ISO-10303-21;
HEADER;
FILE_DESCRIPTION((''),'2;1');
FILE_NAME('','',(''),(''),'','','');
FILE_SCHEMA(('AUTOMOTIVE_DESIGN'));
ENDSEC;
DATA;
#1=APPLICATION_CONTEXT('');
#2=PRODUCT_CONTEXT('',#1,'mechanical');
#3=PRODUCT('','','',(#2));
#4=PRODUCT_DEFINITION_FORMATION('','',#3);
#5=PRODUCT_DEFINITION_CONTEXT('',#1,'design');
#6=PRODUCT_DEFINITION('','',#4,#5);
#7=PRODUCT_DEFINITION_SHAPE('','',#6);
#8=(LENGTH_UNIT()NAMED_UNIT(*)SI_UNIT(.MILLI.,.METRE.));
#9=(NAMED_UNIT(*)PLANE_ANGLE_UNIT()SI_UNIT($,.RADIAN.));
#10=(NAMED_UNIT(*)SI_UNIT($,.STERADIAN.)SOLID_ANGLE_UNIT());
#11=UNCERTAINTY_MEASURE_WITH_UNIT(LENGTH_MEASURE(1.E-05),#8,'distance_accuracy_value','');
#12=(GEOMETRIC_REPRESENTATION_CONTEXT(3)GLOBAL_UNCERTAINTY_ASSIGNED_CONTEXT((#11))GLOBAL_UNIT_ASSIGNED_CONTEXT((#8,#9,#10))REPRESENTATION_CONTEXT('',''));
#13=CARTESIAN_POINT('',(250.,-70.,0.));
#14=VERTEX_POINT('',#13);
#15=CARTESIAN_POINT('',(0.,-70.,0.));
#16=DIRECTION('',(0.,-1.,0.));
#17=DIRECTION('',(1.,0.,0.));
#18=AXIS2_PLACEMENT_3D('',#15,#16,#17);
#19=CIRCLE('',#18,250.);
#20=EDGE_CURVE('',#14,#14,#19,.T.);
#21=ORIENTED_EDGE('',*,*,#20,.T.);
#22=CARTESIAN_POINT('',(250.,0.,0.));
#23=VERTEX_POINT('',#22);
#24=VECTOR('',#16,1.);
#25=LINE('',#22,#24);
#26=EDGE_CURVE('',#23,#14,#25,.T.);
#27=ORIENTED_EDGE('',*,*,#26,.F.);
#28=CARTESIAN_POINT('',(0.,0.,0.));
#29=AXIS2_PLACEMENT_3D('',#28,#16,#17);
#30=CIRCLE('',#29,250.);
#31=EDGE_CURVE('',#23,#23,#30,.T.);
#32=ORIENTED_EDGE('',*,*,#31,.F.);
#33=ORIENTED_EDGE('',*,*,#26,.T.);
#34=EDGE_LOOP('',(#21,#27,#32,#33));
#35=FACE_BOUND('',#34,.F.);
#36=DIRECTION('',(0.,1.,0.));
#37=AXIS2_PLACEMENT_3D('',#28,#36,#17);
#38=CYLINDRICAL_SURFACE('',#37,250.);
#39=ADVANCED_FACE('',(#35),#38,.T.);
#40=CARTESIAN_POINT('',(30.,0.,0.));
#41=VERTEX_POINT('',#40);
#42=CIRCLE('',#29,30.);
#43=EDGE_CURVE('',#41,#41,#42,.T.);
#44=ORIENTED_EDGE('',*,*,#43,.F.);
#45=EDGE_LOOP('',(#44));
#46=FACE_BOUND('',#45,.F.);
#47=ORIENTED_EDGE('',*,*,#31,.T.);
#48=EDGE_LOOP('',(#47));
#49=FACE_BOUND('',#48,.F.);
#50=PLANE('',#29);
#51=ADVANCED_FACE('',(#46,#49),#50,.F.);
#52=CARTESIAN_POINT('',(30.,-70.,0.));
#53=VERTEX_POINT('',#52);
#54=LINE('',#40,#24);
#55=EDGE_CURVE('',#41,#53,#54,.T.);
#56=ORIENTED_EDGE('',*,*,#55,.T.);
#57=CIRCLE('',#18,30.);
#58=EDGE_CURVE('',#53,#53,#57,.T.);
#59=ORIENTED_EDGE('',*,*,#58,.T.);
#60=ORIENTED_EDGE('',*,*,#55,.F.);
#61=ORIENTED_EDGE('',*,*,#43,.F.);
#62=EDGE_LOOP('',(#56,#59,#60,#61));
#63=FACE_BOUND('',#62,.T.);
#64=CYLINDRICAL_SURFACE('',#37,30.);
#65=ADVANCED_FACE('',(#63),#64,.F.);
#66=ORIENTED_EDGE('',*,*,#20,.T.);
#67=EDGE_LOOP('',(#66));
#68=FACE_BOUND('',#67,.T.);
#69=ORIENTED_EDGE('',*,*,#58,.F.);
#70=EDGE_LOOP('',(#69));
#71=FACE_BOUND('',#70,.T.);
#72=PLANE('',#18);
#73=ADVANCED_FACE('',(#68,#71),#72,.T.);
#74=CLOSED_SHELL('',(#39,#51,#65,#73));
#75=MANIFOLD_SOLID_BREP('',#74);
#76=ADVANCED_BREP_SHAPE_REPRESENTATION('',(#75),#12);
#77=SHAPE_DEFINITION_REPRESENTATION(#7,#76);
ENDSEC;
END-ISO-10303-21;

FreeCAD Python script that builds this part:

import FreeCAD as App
import Part
import Sketcher
from FreeCAD import Vector

doc = App.newDocument("Part")
body = doc.addObject("PartDesign::Body", "Body")

# Sketch on XZ plane
sketch1 = body.newObject("Sketcher::SketchObject", "Sketch")
sketch1.AttachmentSupport = (doc.getObject("XZ_Plane"), [""])
sketch1.MapMode = "FlatFace"
sketch1.addGeometry([
    Part.Circle(Vector(0, 0, 0), Vector(0, 0, 1), 250),
    Part.Circle(Vector(0, 0, 0), Vector(0, 0, 1), 30),
], False)
sketch1.addConstraint([
    Sketcher.Constraint("Coincident", 0, 3, -1, 1),
    Sketcher.Constraint("Coincident", 1, 3, -1, 1),
    Sketcher.Constraint("Diameter", 0, 500.0),
    Sketcher.Constraint("Diameter", 1, 60.0),
])
pad1 = body.newObject("PartDesign::Pad", "Pad")
pad1.Profile = sketch1
pad1.Length = 70

doc.recompute()
